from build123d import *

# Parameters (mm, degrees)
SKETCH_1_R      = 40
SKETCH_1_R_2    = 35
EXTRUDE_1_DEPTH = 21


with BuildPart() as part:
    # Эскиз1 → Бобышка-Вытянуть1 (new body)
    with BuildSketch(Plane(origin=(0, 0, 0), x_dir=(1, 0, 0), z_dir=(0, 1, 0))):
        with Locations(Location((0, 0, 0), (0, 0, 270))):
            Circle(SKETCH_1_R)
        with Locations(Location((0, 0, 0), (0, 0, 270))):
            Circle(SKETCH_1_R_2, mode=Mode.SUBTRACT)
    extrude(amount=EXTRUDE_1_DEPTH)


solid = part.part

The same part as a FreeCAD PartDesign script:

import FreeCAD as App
import Part
import Sketcher
from FreeCAD import Vector

doc = App.newDocument("Part")
body = doc.addObject("PartDesign::Body", "Body")

# Sketch on XZ plane
sketch1 = body.newObject("Sketcher::SketchObject", "Sketch")
sketch1.AttachmentSupport = (doc.getObject("XZ_Plane"), [""])
sketch1.MapMode = "FlatFace"
sketch1.addGeometry([
    Part.Circle(Vector(0, 0, 0), Vector(0, 0, 1), 40),
    Part.Circle(Vector(0, 0, 0), Vector(0, 0, 1), 35),
], False)
sketch1.addConstraint([
    Sketcher.Constraint("Coincident", 0, 3, -1, 1),
    Sketcher.Constraint("Coincident", 1, 3, -1, 1),
    Sketcher.Constraint("Diameter", 0, 80.0),
    Sketcher.Constraint("Diameter", 1, 70.0),
])
pad1 = body.newObject("PartDesign::Pad", "Pad")
pad1.Profile = sketch1
pad1.Length = 21
pad1.Reversed = True

doc.recompute()
